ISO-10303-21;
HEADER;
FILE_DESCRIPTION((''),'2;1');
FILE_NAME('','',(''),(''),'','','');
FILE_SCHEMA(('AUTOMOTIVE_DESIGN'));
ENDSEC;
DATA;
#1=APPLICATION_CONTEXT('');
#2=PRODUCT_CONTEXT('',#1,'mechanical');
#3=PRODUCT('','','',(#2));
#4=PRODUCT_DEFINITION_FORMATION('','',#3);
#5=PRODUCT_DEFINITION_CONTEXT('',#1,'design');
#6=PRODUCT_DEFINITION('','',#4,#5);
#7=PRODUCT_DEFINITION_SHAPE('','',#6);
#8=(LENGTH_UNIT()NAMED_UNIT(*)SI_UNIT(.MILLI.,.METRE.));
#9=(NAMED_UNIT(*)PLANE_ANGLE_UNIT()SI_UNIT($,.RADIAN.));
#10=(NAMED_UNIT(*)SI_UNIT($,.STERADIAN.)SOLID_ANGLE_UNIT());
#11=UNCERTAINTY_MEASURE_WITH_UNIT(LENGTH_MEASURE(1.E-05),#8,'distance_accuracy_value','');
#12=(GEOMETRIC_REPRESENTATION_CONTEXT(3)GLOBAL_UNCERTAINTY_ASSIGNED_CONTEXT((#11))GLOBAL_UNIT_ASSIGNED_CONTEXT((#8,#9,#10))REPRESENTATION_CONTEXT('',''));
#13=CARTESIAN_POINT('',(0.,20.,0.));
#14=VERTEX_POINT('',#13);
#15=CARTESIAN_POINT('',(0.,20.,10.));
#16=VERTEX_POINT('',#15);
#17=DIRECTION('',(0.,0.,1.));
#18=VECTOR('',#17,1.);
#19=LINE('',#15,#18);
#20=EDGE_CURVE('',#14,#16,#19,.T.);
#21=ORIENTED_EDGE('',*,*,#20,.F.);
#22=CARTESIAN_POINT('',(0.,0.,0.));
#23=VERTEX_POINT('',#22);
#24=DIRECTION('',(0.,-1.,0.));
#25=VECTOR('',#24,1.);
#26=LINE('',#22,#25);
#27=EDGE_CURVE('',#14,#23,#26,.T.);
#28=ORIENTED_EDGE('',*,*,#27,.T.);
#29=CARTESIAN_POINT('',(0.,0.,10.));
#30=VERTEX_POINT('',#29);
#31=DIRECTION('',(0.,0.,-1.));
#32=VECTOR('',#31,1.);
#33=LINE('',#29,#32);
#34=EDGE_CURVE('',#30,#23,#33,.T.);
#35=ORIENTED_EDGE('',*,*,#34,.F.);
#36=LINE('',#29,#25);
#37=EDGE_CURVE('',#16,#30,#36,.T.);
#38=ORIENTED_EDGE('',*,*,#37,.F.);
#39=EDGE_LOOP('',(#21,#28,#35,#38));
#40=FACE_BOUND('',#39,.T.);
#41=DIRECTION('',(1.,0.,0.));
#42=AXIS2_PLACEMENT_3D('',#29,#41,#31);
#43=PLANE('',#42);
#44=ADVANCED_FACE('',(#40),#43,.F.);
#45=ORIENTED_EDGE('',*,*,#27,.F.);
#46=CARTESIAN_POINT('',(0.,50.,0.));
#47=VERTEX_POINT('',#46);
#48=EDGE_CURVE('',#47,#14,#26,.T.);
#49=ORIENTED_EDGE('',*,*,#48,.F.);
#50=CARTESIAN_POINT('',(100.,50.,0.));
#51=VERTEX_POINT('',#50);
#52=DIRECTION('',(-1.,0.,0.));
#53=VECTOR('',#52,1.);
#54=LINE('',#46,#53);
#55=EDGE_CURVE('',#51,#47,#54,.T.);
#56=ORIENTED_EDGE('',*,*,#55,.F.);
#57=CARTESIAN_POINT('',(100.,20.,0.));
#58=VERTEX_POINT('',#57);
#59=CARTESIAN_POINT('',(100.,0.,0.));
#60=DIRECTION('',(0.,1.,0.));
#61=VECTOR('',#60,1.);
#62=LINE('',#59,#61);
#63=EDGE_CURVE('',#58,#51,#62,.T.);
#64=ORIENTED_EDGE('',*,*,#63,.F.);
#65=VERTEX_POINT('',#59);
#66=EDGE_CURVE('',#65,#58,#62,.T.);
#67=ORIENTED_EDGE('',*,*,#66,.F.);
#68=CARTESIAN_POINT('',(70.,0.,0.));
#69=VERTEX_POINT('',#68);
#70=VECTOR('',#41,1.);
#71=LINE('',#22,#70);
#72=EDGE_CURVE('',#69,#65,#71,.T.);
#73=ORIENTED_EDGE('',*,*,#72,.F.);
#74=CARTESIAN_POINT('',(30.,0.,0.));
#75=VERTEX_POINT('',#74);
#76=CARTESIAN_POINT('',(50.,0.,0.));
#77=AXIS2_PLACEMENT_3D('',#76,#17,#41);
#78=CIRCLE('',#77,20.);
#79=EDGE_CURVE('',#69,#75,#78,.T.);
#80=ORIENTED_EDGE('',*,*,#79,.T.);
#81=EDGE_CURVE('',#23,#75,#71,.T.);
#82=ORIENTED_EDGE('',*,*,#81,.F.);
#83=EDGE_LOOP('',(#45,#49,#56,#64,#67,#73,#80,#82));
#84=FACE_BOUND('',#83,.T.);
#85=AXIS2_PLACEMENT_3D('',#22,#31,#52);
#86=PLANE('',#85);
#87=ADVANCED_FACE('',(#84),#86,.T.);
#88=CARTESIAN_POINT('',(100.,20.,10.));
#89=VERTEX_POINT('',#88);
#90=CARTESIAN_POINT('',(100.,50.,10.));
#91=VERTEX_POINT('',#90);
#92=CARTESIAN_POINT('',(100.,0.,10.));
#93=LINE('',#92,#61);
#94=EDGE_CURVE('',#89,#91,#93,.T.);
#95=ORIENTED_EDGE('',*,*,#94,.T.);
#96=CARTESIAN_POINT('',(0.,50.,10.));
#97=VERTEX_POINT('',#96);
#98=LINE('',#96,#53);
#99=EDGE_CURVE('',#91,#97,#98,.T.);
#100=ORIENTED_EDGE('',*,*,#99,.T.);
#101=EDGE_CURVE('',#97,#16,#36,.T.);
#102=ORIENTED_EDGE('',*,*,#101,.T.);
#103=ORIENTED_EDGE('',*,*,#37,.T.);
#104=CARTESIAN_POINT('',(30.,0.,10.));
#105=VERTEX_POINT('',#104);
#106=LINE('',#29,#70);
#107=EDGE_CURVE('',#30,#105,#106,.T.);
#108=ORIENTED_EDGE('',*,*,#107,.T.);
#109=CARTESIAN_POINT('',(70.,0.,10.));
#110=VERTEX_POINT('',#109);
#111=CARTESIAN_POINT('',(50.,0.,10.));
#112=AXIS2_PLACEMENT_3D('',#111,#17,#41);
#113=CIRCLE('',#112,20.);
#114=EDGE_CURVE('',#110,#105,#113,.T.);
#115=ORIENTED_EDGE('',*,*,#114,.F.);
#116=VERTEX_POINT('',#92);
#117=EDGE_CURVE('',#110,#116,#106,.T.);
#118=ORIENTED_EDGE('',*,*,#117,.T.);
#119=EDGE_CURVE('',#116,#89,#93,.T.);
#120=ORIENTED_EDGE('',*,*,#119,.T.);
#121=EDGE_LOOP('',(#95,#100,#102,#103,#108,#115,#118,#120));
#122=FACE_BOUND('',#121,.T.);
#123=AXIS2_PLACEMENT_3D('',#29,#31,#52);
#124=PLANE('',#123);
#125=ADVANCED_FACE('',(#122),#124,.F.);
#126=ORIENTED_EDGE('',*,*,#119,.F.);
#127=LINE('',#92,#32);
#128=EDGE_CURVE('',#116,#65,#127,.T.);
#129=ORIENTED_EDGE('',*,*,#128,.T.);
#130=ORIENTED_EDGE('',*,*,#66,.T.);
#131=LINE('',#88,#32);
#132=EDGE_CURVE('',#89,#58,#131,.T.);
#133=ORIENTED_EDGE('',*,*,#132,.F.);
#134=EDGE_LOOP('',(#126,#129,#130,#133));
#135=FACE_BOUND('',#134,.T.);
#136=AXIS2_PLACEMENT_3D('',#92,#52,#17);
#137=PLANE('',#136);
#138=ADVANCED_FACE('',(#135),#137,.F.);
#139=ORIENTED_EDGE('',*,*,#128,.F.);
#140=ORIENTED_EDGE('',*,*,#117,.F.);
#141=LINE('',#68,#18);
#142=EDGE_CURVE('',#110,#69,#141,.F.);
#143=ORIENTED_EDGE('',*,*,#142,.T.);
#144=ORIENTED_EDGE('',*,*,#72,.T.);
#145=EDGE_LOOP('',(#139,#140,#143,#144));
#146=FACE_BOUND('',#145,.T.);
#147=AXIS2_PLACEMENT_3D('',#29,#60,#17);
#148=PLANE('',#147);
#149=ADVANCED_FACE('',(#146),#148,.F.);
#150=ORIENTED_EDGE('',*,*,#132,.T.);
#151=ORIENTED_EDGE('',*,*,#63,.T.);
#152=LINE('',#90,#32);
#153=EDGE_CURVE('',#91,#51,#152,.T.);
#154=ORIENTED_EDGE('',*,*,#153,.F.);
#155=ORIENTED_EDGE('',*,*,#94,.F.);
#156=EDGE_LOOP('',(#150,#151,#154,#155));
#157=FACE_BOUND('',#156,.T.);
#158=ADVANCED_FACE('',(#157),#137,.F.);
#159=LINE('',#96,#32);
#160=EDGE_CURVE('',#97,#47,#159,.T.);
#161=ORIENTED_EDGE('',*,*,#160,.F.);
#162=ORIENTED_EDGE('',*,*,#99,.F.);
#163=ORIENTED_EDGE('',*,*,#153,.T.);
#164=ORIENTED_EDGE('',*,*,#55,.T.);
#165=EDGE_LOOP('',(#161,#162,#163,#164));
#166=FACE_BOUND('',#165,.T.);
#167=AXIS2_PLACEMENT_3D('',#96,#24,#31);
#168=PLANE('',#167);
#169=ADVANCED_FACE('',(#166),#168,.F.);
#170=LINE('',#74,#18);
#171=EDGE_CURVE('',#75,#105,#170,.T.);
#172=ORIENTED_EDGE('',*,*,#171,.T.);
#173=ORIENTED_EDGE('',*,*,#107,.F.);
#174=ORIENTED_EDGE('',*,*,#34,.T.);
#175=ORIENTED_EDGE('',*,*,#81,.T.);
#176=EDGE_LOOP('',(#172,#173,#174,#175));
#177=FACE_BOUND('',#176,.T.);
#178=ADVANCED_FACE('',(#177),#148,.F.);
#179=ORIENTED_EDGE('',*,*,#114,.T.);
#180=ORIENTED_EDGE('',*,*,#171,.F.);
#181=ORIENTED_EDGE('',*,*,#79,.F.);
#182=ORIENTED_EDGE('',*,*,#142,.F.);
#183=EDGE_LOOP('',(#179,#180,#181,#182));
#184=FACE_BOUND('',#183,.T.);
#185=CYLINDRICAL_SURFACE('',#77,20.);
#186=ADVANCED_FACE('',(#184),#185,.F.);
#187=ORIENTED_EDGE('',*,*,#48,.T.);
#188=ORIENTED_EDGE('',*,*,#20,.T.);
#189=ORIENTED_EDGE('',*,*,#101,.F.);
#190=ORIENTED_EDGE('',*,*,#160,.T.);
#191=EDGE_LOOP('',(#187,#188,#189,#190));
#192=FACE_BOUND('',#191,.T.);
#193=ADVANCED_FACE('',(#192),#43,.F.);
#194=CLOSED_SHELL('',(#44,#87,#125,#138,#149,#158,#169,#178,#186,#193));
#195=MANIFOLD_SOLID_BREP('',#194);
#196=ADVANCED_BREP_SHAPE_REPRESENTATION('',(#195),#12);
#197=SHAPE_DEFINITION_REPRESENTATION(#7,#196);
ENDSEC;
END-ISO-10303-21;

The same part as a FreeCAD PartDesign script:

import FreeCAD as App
import Part
import Sketcher

V = App.Vector
Q = App.Units.Quantity


def add_polygon(sketch, points):
    """Adds a closed chain of lines whose ends are joined by coincident constraints."""
    first, n = sketch.GeometryCount, len(points)
    for a, b in zip(points, points[1:] + points[:1]):
        sketch.addGeometry(Part.LineSegment(App.Vector(*a, 0), App.Vector(*b, 0)), False)
    for i in range(n):
        sketch.addConstraint(Sketcher.Constraint("Coincident", first + i, 2, first + (i + 1) % n, 1))

doc = App.newDocument("Part")
body = doc.addObject("PartDesign::Body", "Body")

sketch1 = body.newObject("Sketcher::SketchObject", "Sketch")
sketch1.AttachmentSupport = (doc.getObject("XY_Plane"), [""])
sketch1.MapMode = "FlatFace"
add_polygon(sketch1, [(0, 50), (0, 0), (100, 0), (100, 50)])
sketch1.addConstraint([
    Sketcher.Constraint("Vertical", 0),
    Sketcher.Constraint("Horizontal", 1),
    Sketcher.Constraint("Vertical", 2),
    Sketcher.Constraint("Horizontal", 3),
    Sketcher.Constraint("Coincident", 0, 2, -1, 1),
    Sketcher.Constraint("DistanceX", 1, 1, 1, 2, Q("100 mm")),
    Sketcher.Constraint("DistanceY", 0, 2, 0, 1, Q("50 mm")),
])
pad1 = body.newObject("PartDesign::Pad", "Pad")
pad1.Profile = sketch1
pad1.Length = 10

sketch2 = body.newObject("Sketcher::SketchObject", "Sketch001")
sketch2.AttachmentSupport = (doc.getObject("XY_Plane"), [""])
sketch2.MapMode = "FlatFace"
sketch2.AttachmentOffset = App.Placement(V(0, 0, 10), App.Rotation())
sketch2.addGeometry(Part.Circle(V(50, 0, 0), V(0, 0, 1), 20), False)
sketch2.addConstraint([
    Sketcher.Constraint("PointOnObject", 0, 3, -1),
    Sketcher.Constraint("Diameter", 0, Q("40 mm")),
    Sketcher.Constraint("DistanceX", -1, 1, 0, 3, Q("50 mm")),
])
pocket1 = body.newObject("PartDesign::Pocket", "Pocket")
pocket1.Profile = sketch2
pocket1.Type = "ThroughAll"

doc.recompute()
